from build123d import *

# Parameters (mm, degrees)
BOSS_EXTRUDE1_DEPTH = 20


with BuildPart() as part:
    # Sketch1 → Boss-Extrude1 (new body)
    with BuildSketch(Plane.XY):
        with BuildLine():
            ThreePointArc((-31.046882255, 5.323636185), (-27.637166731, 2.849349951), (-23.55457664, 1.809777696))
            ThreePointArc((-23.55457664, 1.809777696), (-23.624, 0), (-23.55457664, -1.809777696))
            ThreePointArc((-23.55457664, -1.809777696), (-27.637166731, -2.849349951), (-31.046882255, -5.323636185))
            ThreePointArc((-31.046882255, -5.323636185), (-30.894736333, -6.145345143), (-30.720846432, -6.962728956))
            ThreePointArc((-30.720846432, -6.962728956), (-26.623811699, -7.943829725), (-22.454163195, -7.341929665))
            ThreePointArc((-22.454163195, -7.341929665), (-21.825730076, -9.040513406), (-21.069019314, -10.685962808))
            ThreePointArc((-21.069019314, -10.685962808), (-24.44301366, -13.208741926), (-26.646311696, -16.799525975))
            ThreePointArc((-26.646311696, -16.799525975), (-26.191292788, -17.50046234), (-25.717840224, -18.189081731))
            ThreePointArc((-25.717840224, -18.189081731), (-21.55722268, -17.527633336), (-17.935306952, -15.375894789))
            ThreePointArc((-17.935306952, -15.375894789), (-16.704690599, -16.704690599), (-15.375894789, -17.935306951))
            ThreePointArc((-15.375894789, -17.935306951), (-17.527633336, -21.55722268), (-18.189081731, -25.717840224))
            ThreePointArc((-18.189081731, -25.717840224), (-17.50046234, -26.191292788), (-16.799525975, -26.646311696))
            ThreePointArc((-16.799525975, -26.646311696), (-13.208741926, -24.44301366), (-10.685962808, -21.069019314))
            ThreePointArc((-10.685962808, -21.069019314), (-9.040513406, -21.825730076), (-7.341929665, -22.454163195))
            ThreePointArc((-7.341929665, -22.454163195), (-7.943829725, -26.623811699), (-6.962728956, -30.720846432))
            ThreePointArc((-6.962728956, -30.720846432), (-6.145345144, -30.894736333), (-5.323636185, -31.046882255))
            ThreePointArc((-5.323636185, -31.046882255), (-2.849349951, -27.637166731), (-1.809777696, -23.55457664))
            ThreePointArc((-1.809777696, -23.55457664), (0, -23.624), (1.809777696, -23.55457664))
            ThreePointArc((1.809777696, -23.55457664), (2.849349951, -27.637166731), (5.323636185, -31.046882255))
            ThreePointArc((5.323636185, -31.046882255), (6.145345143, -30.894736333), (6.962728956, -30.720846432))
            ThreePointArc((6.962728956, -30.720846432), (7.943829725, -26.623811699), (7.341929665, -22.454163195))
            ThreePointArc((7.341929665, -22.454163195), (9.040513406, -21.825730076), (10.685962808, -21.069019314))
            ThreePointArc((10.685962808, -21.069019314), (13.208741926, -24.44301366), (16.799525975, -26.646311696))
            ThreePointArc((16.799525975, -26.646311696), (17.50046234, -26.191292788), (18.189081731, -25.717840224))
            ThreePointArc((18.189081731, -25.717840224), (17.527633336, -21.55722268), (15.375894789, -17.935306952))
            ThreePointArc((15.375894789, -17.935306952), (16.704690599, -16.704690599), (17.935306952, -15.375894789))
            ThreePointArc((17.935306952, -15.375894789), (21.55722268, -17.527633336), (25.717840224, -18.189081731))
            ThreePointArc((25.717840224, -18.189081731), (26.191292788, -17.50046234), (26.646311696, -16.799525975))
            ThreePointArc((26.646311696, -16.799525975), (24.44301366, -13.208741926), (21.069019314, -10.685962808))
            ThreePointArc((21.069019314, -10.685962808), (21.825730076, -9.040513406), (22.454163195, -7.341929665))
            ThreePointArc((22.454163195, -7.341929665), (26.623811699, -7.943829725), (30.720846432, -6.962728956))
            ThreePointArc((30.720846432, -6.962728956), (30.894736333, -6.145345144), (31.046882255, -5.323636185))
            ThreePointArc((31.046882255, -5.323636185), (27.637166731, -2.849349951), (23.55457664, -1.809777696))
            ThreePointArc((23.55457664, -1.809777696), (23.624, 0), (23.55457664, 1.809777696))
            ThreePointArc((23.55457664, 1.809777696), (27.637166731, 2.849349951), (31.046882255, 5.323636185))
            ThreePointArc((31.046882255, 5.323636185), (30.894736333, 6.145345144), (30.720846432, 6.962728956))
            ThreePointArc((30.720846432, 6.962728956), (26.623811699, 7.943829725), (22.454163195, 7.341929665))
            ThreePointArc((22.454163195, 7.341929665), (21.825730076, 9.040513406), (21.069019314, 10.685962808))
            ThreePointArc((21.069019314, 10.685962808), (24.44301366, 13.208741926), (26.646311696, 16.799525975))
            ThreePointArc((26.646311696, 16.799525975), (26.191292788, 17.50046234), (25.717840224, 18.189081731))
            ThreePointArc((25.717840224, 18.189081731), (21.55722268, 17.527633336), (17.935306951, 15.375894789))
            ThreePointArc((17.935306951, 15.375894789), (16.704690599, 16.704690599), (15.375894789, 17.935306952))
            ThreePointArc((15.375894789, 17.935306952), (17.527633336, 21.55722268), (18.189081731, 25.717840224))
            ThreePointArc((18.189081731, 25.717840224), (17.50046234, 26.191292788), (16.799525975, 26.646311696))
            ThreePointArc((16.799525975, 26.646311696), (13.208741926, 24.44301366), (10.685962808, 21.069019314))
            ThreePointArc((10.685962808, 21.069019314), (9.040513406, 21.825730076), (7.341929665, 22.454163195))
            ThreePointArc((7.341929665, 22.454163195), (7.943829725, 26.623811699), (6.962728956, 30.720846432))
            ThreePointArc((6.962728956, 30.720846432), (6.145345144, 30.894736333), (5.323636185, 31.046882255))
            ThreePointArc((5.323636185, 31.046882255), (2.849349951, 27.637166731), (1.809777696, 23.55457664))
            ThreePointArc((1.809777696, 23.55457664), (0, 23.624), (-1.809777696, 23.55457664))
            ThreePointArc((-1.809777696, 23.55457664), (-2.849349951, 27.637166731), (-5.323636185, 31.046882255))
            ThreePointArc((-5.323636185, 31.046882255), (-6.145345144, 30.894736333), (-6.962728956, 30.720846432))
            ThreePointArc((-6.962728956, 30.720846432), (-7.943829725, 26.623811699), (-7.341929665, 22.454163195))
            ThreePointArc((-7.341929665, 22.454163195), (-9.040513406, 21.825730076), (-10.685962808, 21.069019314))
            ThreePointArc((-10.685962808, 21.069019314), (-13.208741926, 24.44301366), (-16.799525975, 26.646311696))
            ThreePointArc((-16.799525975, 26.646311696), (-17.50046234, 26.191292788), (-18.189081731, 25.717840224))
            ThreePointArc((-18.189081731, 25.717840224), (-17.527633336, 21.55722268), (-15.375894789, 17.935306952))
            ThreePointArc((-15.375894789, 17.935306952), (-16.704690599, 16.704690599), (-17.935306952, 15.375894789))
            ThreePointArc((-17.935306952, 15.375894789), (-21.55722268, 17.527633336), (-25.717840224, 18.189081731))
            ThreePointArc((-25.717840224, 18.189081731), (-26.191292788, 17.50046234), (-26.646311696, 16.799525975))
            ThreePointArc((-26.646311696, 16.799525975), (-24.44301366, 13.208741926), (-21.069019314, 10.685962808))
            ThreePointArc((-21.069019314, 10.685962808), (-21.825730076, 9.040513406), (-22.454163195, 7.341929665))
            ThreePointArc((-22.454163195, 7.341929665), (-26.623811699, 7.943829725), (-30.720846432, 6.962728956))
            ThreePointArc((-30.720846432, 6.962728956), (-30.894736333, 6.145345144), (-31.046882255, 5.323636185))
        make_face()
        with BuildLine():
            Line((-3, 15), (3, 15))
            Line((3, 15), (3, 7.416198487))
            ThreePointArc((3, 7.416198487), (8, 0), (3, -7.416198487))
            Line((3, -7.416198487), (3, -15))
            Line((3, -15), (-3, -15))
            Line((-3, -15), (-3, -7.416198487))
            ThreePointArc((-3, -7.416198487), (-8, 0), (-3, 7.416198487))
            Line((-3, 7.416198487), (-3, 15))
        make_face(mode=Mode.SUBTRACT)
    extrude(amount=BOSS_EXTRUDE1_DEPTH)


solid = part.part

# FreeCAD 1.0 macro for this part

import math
import FreeCAD as App
import Part
import Sketcher
Q = App.Units.Quantity

doc = App.newDocument("Part")
params = doc.addObject("Spreadsheet::Sheet", "Params")
for row, (alias, value) in enumerate([
    ("sketch1_radius", "8 mm"),
    ("sketch1_radius2", "11.2 mm"),
    ("sketch1_radius3", "31.499999 mm"),
    ("sketch1_width", "6 mm"),
    ("pad1_length", "20 mm"),
], start=1):
    params.set(f"A{row}", alias)
    params.set(f"B{row}", "=" + value)
    params.setAlias(f"B{row}", alias)

body = doc.addObject("PartDesign::Body", "Body")

sketch1 = body.newObject("Sketcher::SketchObject", "Sketch")
sketch1.AttachmentSupport = (doc.getObject("XY_Plane"), [""])
sketch1.MapMode = "FlatFace"
sketch1.addGeometry(Part.ArcOfCircle(Part.Circle(App.Vector(-22.9, 13, 0), App.Vector(0, 0, 1), 11.2), math.radians(-137), math.radians(-93)), False)
sketch1.addGeometry(Part.ArcOfCircle(Part.Circle(App.Vector(0, 0, 0), App.Vector(0, 0, 1), 23.6), math.radians(175.61), math.radians(184.39)), False)
sketch1.addGeometry(Part.ArcOfCircle(Part.Circle(App.Vector(-22.9, -13, 0), App.Vector(0, 0, 1), 11.2), math.radians(93), math.radians(137)), False)
sketch1.addGeometry(Part.ArcOfCircle(Part.Circle(App.Vector(0, 0, 0), App.Vector(0, 0, 1), 31.5), math.radians(-170.27), math.radians(-167.23)), False)
sketch1.addGeometry(Part.ArcOfCircle(Part.Circle(App.Vector(-26.1, 3.2, 0), App.Vector(0, 0, 1), 11.2), math.radians(-114), math.radians(-71)), False)
sketch1.addGeometry(Part.ArcOfCircle(Part.Circle(App.Vector(0, 0, 0), App.Vector(0, 0, 1), 23.6), math.radians(-161.89), math.radians(-153.11)), False)
sketch1.addGeometry(Part.ArcOfCircle(Part.Circle(App.Vector(-16.2, -20.8, 0), App.Vector(0, 0, 1), 11.2), math.radians(116), math.radians(159)), False)
sketch1.addGeometry(Part.ArcOfCircle(Part.Circle(App.Vector(0, 0, 0), App.Vector(0, 0, 1), 31.5), math.radians(-147.77), math.radians(-144.73)), False)
sketch1.addGeometry(Part.ArcOfCircle(Part.Circle(App.Vector(-25.4, -7, 0), App.Vector(0, 0, 1), 11.2), math.radians(-92), math.radians(-48)), False)
sketch1.addGeometry(Part.ArcOfCircle(Part.Circle(App.Vector(0, 0, 0), App.Vector(0, 0, 1), 23.6), math.radians(-139.39), math.radians(-130.61)), False)
sketch1.addGeometry(Part.ArcOfCircle(Part.Circle(App.Vector(-7, -25.4, 0), App.Vector(0, 0, 1), 11.2), math.radians(138), math.radians(182)), False)
sketch1.addGeometry(Part.ArcOfCircle(Part.Circle(App.Vector(0, 0, 0), App.Vector(0, 0, 1), 31.5), math.radians(-125.27), math.radians(-122.23)), False)
sketch1.addGeometry(Part.ArcOfCircle(Part.Circle(App.Vector(-20.8, -16.2, 0), App.Vector(0, 0, 1), 11.2), math.radians(-69), math.radians(-26)), False)
sketch1.addGeometry(Part.ArcOfCircle(Part.Circle(App.Vector(0, 0, 0), App.Vector(0, 0, 1), 23.6), math.radians(-116.89), math.radians(-108.11)), False)
sketch1.addGeometry(Part.ArcOfCircle(Part.Circle(App.Vector(3.2, -26.1, 0), App.Vector(0, 0, 1), 11.2), math.radians(161), math.radians(204)), False)
sketch1.addGeometry(Part.ArcOfCircle(Part.Circle(App.Vector(0, 0, 0), App.Vector(0, 0, 1), 31.5), math.radians(-102.77), math.radians(-99.73)), False)
sketch1.addGeometry(Part.ArcOfCircle(Part.Circle(App.Vector(-13, -22.9, 0), App.Vector(0, 0, 1), 11.2), math.radians(-47), math.radians(-3)), False)
sketch1.addGeometry(Part.ArcOfCircle(Part.Circle(App.Vector(0, 0, 0), App.Vector(0, 0, 1), 23.6), math.radians(-94.39), math.radians(-85.61)), False)
sketch1.addGeometry(Part.ArcOfCircle(Part.Circle(App.Vector(13, -22.9, 0), App.Vector(0, 0, 1), 11.2), math.radians(-177), math.radians(-133)), False)
sketch1.addGeometry(Part.ArcOfCircle(Part.Circle(App.Vector(0, 0, 0), App.Vector(0, 0, 1), 31.5), math.radians(-80.27), math.radians(-77.23)), False)
sketch1.addGeometry(Part.ArcOfCircle(Part.Circle(App.Vector(-3.2, -26.1, 0), App.Vector(0, 0, 1), 11.2), math.radians(-24), math.radians(19)), False)
sketch1.addGeometry(Part.ArcOfCircle(Part.Circle(App.Vector(0, 0, 0), App.Vector(0, 0, 1), 23.6), math.radians(-71.89), math.radians(-63.11)), False)
sketch1.addGeometry(Part.ArcOfCircle(Part.Circle(App.Vector(20.8, -16.2, 0), App.Vector(0, 0, 1), 11.2), math.radians(-154), math.radians(-111)), False)
sketch1.addGeometry(Part.ArcOfCircle(Part.Circle(App.Vector(0, 0, 0), App.Vector(0, 0, 1), 31.5), math.radians(-57.77), math.radians(-54.73)), False)
sketch1.addGeometry(Part.ArcOfCircle(Part.Circle(App.Vector(7, -25.4, 0), App.Vector(0, 0, 1), 11.2), math.radians(-2), math.radians(42)), False)
sketch1.addGeometry(Part.ArcOfCircle(Part.Circle(App.Vector(0, 0, 0), App.Vector(0, 0, 1), 23.6), math.radians(-49.39), math.radians(-40.61)), False)
sketch1.addGeometry(Part.ArcOfCircle(Part.Circle(App.Vector(25.4, -7, 0), App.Vector(0, 0, 1), 11.2), math.radians(-132), math.radians(-88)), False)
sketch1.addGeometry(Part.ArcOfCircle(Part.Circle(App.Vector(0, 0, 0), App.Vector(0, 0, 1), 31.5), math.radians(-35.27), math.radians(-32.23)), False)
sketch1.addGeometry(Part.ArcOfCircle(Part.Circle(App.Vector(16.2, -20.8, 0), App.Vector(0, 0, 1), 11.2), math.radians(21), math.radians(64)), False)
sketch1.addGeometry(Part.ArcOfCircle(Part.Circle(App.Vector(0, 0, 0), App.Vector(0, 0, 1), 23.6), math.radians(-26.89), math.radians(-18.11)), False)
sketch1.addGeometry(Part.ArcOfCircle(Part.Circle(App.Vector(26.1, 3.2, 0), App.Vector(0, 0, 1), 11.2), math.radians(-109), math.radians(-66)), False)
sketch1.addGeometry(Part.ArcOfCircle(Part.Circle(App.Vector(0, 0, 0), App.Vector(0, 0, 1), 31.5), math.radians(-12.77), math.radians(-9.73)), False)
sketch1.addGeometry(Part.ArcOfCircle(Part.Circle(App.Vector(22.9, -13, 0), App.Vector(0, 0, 1), 11.2), math.radians(43), math.radians(87)), False)
sketch1.addGeometry(Part.ArcOfCircle(Part.Circle(App.Vector(0, 0, 0), App.Vector(0, 0, 1), 23.6), math.radians(-4.39), math.radians(4.39)), False)
sketch1.addGeometry(Part.ArcOfCircle(Part.Circle(App.Vector(22.9, 13, 0), App.Vector(0, 0, 1), 11.2), math.radians(-87), math.radians(-43)), False)
sketch1.addGeometry(Part.ArcOfCircle(Part.Circle(App.Vector(0, 0, 0), App.Vector(0, 0, 1), 31.5), math.radians(9.73), math.radians(12.77)), False)
sketch1.addGeometry(Part.ArcOfCircle(Part.Circle(App.Vector(26.1, -3.2, 0), App.Vector(0, 0, 1), 11.2), math.radians(66), math.radians(109)), False)
sketch1.addGeometry(Part.ArcOfCircle(Part.Circle(App.Vector(0, 0, 0), App.Vector(0, 0, 1), 23.6), math.radians(18.11), math.radians(26.89)), False)
sketch1.addGeometry(Part.ArcOfCircle(Part.Circle(App.Vector(16.2, 20.8, 0), App.Vector(0, 0, 1), 11.2), math.radians(-64), math.radians(-21)), False)
sketch1.addGeometry(Part.ArcOfCircle(Part.Circle(App.Vector(0, 0, 0), App.Vector(0, 0, 1), 31.5), math.radians(32.23), math.radians(35.27)), False)
sketch1.addGeometry(Part.ArcOfCircle(Part.Circle(App.Vector(25.4, 7, 0), App.Vector(0, 0, 1), 11.2), math.radians(88), math.radians(132)), False)
sketch1.addGeometry(Part.ArcOfCircle(Part.Circle(App.Vector(0, 0, 0), App.Vector(0, 0, 1), 23.6), math.radians(40.61), math.radians(49.39)), False)
sketch1.addGeometry(Part.ArcOfCircle(Part.Circle(App.Vector(7, 25.4, 0), App.Vector(0, 0, 1), 11.2), math.radians(-42), math.radians(2)), False)
sketch1.addGeometry(Part.ArcOfCircle(Part.Circle(App.Vector(0, 0, 0), App.Vector(0, 0, 1), 31.5), math.radians(54.73), math.radians(57.77)), False)
sketch1.addGeometry(Part.ArcOfCircle(Part.Circle(App.Vector(20.8, 16.2, 0), App.Vector(0, 0, 1), 11.2), math.radians(111), math.radians(154)), False)
sketch1.addGeometry(Part.ArcOfCircle(Part.Circle(App.Vector(0, 0, 0), App.Vector(0, 0, 1), 23.6), math.radians(63.11), math.radians(71.89)), False)
sketch1.addGeometry(Part.ArcOfCircle(Part.Circle(App.Vector(-3.2, 26.1, 0), App.Vector(0, 0, 1), 11.2), math.radians(-19), math.radians(24)), False)
sketch1.addGeometry(Part.ArcOfCircle(Part.Circle(App.Vector(0, 0, 0), App.Vector(0, 0, 1), 31.5), math.radians(77.23), math.radians(80.27)), False)
sketch1.addGeometry(Part.ArcOfCircle(Part.Circle(App.Vector(13, 22.9, 0), App.Vector(0, 0, 1), 11.2), math.radians(133), math.radians(177)), False)
sketch1.addGeometry(Part.ArcOfCircle(Part.Circle(App.Vector(0, 0, 0), App.Vector(0, 0, 1), 23.6), math.radians(85.61), math.radians(94.39)), False)
sketch1.addGeometry(Part.ArcOfCircle(Part.Circle(App.Vector(-13, 22.9, 0), App.Vector(0, 0, 1), 11.2), math.radians(3), math.radians(47)), False)
sketch1.addGeometry(Part.ArcOfCircle(Part.Circle(App.Vector(0, 0, 0), App.Vector(0, 0, 1), 31.5), math.radians(99.73), math.radians(102.77)), False)
sketch1.addGeometry(Part.ArcOfCircle(Part.Circle(App.Vector(3.2, 26.1, 0), App.Vector(0, 0, 1), 11.2), math.radians(156), math.radians(199)), False)
sketch1.addGeometry(Part.ArcOfCircle(Part.Circle(App.Vector(0, 0, 0), App.Vector(0, 0, 1), 23.6), math.radians(108.11), math.radians(116.89)), False)
sketch1.addGeometry(Part.ArcOfCircle(Part.Circle(App.Vector(-20.8, 16.2, 0), App.Vector(0, 0, 1), 11.2), math.radians(26), math.radians(69)), False)
sketch1.addGeometry(Part.ArcOfCircle(Part.Circle(App.Vector(0, 0, 0), App.Vector(0, 0, 1), 31.5), math.radians(122.23), math.radians(125.27)), False)
sketch1.addGeometry(Part.ArcOfCircle(Part.Circle(App.Vector(-7, 25.4, 0), App.Vector(0, 0, 1), 11.2), math.radians(178), math.radians(222)), False)
sketch1.addGeometry(Part.ArcOfCircle(Part.Circle(App.Vector(0, 0, 0), App.Vector(0, 0, 1), 23.6), math.radians(130.61), math.radians(139.39)), False)
sketch1.addGeometry(Part.ArcOfCircle(Part.Circle(App.Vector(-25.4, 7, 0), App.Vector(0, 0, 1), 11.2), math.radians(48), math.radians(92)), False)
sketch1.addGeometry(Part.ArcOfCircle(Part.Circle(App.Vector(0, 0, 0), App.Vector(0, 0, 1), 31.5), math.radians(144.73), math.radians(147.77)), False)
sketch1.addGeometry(Part.ArcOfCircle(Part.Circle(App.Vector(-16.2, 20.8, 0), App.Vector(0, 0, 1), 11.2), math.radians(-159), math.radians(-116)), False)
sketch1.addGeometry(Part.ArcOfCircle(Part.Circle(App.Vector(0, 0, 0), App.Vector(0, 0, 1), 23.6), math.radians(153.11), math.radians(161.89)), False)
sketch1.addGeometry(Part.ArcOfCircle(Part.Circle(App.Vector(-26.1, -3.2, 0), App.Vector(0, 0, 1), 11.2), math.radians(71), math.radians(114)), False)
sketch1.addGeometry(Part.ArcOfCircle(Part.Circle(App.Vector(0, 0, 0), App.Vector(0, 0, 1), 31.5), math.radians(167.23), math.radians(170.27)), False)
sketch1.addGeometry(Part.LineSegment(App.Vector(-3, 7.4, 0), App.Vector(-3, 15, 0)), False)
sketch1.addGeometry(Part.LineSegment(App.Vector(-3, 15, 0), App.Vector(3, 15, 0)), False)
sketch1.addGeometry(Part.LineSegment(App.Vector(3, 15, 0), App.Vector(3, 7.4, 0)), False)
sketch1.addGeometry(Part.ArcOfCircle(Part.Circle(App.Vector(0, 0, 0), App.Vector(0, 0, 1), 8), math.radians(-68), math.radians(68)), False)
sketch1.addGeometry(Part.LineSegment(App.Vector(3, -7.4, 0), App.Vector(3, -15, 0)), False)
sketch1.addGeometry(Part.LineSegment(App.Vector(3, -15, 0), App.Vector(-3, -15, 0)), False)
sketch1.addGeometry(Part.LineSegment(App.Vector(-3, -15, 0), App.Vector(-3, -7.4, 0)), False)
sketch1.addGeometry(Part.ArcOfCircle(Part.Circle(App.Vector(0, 0, 0), App.Vector(0, 0, 1), 8), math.radians(112), math.radians(248)), False)
sketch1.addConstraint(Sketcher.Constraint("Coincident", 0, 2, 1, 1))
sketch1.addConstraint(Sketcher.Constraint("Coincident", 1, 2, 2, 1))
sketch1.addConstraint(Sketcher.Constraint("Coincident", 2, 2, 3, 1))
sketch1.addConstraint(Sketcher.Constraint("Coincident", 3, 2, 4, 1))
sketch1.addConstraint(Sketcher.Constraint("Coincident", 4, 2, 5, 1))
sketch1.addConstraint(Sketcher.Constraint("Coincident", 5, 2, 6, 1))
sketch1.addConstraint(Sketcher.Constraint("Coincident", 6, 2, 7, 1))
sketch1.addConstraint(Sketcher.Constraint("Coincident", 7, 2, 8, 1))
sketch1.addConstraint(Sketcher.Constraint("Coincident", 8, 2, 9, 1))
sketch1.addConstraint(Sketcher.Constraint("Coincident", 9, 2, 10, 1))
sketch1.addConstraint(Sketcher.Constraint("Coincident", 10, 2, 11, 1))
sketch1.addConstraint(Sketcher.Constraint("Coincident", 11, 2, 12, 1))
sketch1.addConstraint(Sketcher.Constraint("Coincident", 12, 2, 13, 1))
sketch1.addConstraint(Sketcher.Constraint("Coincident", 13, 2, 14, 1))
sketch1.addConstraint(Sketcher.Constraint("Coincident", 14, 2, 15, 1))
sketch1.addConstraint(Sketcher.Constraint("Coincident", 15, 2, 16, 1))
sketch1.addConstraint(Sketcher.Constraint("Coincident", 16, 2, 17, 1))
sketch1.addConstraint(Sketcher.Constraint("Coincident", 17, 2, 18, 1))
sketch1.addConstraint(Sketcher.Constraint("Coincident", 18, 2, 19, 1))
sketch1.addConstraint(Sketcher.Constraint("Coincident", 19, 2, 20, 1))
sketch1.addConstraint(Sketcher.Constraint("Coincident", 20, 2, 21, 1))
sketch1.addConstraint(Sketcher.Constraint("Coincident", 21, 2, 22, 1))
sketch1.addConstraint(Sketcher.Constraint("Coincident", 22, 2, 23, 1))
sketch1.addConstraint(Sketcher.Constraint("Coincident", 23, 2, 24, 1))
sketch1.addConstraint(Sketcher.Constraint("Coincident", 24, 2, 25, 1))
sketch1.addConstraint(Sketcher.Constraint("Coincident", 25, 2, 26, 1))
sketch1.addConstraint(Sketcher.Constraint("Coincident", 26, 2, 27, 1))
sketch1.addConstraint(Sketcher.Constraint("Coincident", 27, 2, 28, 1))
sketch1.addConstraint(Sketcher.Constraint("Coincident", 28, 2, 29, 1))
sketch1.addConstraint(Sketcher.Constraint("Coincident", 29, 2, 30, 1))
sketch1.addConstraint(Sketcher.Constraint("Coincident", 30, 2, 31, 1))
sketch1.addConstraint(Sketcher.Constraint("Coincident", 31, 2, 32, 1))
sketch1.addConstraint(Sketcher.Constraint("Coincident", 32, 2, 33, 1))
sketch1.addConstraint(Sketcher.Constraint("Coincident", 33, 2, 34, 1))
sketch1.addConstraint(Sketcher.Constraint("Coincident", 34, 2, 35, 1))
sketch1.addConstraint(Sketcher.Constraint("Coincident", 35, 2, 36, 1))
sketch1.addConstraint(Sketcher.Constraint("Coincident", 36, 2, 37, 1))
sketch1.addConstraint(Sketcher.Constraint("Coincident", 37, 2, 38, 1))
sketch1.addConstraint(Sketcher.Constraint("Coincident", 38, 2, 39, 1))
sketch1.addConstraint(Sketcher.Constraint("Coincident", 39, 2, 40, 1))
sketch1.addConstraint(Sketcher.Constraint("Coincident", 40, 2, 41, 1))
sketch1.addConstraint(Sketcher.Constraint("Coincident", 41, 2, 42, 1))
sketch1.addConstraint(Sketcher.Constraint("Coincident", 42, 2, 43, 1))
sketch1.addConstraint(Sketcher.Constraint("Coincident", 43, 2, 44, 1))
sketch1.addConstraint(Sketcher.Constraint("Coincident", 44, 2, 45, 1))
sketch1.addConstraint(Sketcher.Constraint("Coincident", 45, 2, 46, 1))
sketch1.addConstraint(Sketcher.Constraint("Coincident", 46, 2, 47, 1))
sketch1.addConstraint(Sketcher.Constraint("Coincident", 47, 2, 48, 1))
sketch1.addConstraint(Sketcher.Constraint("Coincident", 48, 2, 49, 1))
sketch1.addConstraint(Sketcher.Constraint("Coincident", 49, 2, 50, 1))
sketch1.addConstraint(Sketcher.Constraint("Coincident", 50, 2, 51, 1))
sketch1.addConstraint(Sketcher.Constraint("Coincident", 51, 2, 52, 1))
sketch1.addConstraint(Sketcher.Constraint("Coincident", 52, 2, 53, 1))
sketch1.addConstraint(Sketcher.Constraint("Coincident", 53, 2, 54, 1))
sketch1.addConstraint(Sketcher.Constraint("Coincident", 54, 2, 55, 1))
sketch1.addConstraint(Sketcher.Constraint("Coincident", 55, 2, 56, 1))
sketch1.addConstraint(Sketcher.Constraint("Coincident", 56, 2, 57, 1))
sketch1.addConstraint(Sketcher.Constraint("Coincident", 57, 2, 58, 1))
sketch1.addConstraint(Sketcher.Constraint("Coincident", 58, 2, 59, 1))
sketch1.addConstraint(Sketcher.Constraint("Coincident", 59, 2, 60, 1))
sketch1.addConstraint(Sketcher.Constraint("Coincident", 60, 2, 61, 1))
sketch1.addConstraint(Sketcher.Constraint("Coincident", 61, 2, 62, 1))
sketch1.addConstraint(Sketcher.Constraint("Coincident", 62, 2, 63, 1))
sketch1.addConstraint(Sketcher.Constraint("Coincident", 63, 2, 0, 1))
sketch1.addConstraint(Sketcher.Constraint("Coincident", 64, 2, 65, 1))
sketch1.addConstraint(Sketcher.Constraint("Coincident", 65, 2, 66, 1))
sketch1.addConstraint(Sketcher.Constraint("Coincident", 66, 2, 67, 2))
sketch1.addConstraint(Sketcher.Constraint("Coincident", 67, 1, 68, 1))
sketch1.addConstraint(Sketcher.Constraint("Coincident", 68, 2, 69, 1))
sketch1.addConstraint(Sketcher.Constraint("Coincident", 69, 2, 70, 1))
sketch1.addConstraint(Sketcher.Constraint("Coincident", 70, 2, 71, 2))
sketch1.addConstraint(Sketcher.Constraint("Coincident", 71, 1, 64, 1))
sketch1.addConstraint(Sketcher.Constraint("Vertical", 64))
sketch1.addConstraint(Sketcher.Constraint("Horizontal", 65))
sketch1.addConstraint(Sketcher.Constraint("Vertical", 66))
sketch1.addConstraint(Sketcher.Constraint("Vertical", 68))
sketch1.addConstraint(Sketcher.Constraint("Horizontal", 69))
sketch1.addConstraint(Sketcher.Constraint("Vertical", 70))
sketch1.addConstraint(Sketcher.Constraint("Coincident", 1, 3, -1, 1))
sketch1.addConstraint(Sketcher.Constraint("Coincident", 3, 3, -1, 1))
sketch1.addConstraint(Sketcher.Constraint("Coincident", 5, 3, -1, 1))
sketch1.addConstraint(Sketcher.Constraint("Coincident", 7, 3, -1, 1))
sketch1.addConstraint(Sketcher.Constraint("Coincident", 9, 3, -1, 1))
sketch1.addConstraint(Sketcher.Constraint("Coincident", 11, 3, -1, 1))
sketch1.addConstraint(Sketcher.Constraint("Coincident", 13, 3, -1, 1))
sketch1.addConstraint(Sketcher.Constraint("Coincident", 15, 3, -1, 1))
sketch1.addConstraint(Sketcher.Constraint("Coincident", 17, 3, -1, 1))
sketch1.addConstraint(Sketcher.Constraint("Coincident", 19, 3, -1, 1))
sketch1.addConstraint(Sketcher.Constraint("Coincident", 21, 3, -1, 1))
sketch1.addConstraint(Sketcher.Constraint("Coincident", 23, 3, -1, 1))
sketch1.addConstraint(Sketcher.Constraint("Coincident", 25, 3, -1, 1))
sketch1.addConstraint(Sketcher.Constraint("Coincident", 27, 3, -1, 1))
sketch1.addConstraint(Sketcher.Constraint("Coincident", 29, 3, -1, 1))
sketch1.addConstraint(Sketcher.Constraint("Coincident", 31, 3, -1, 1))
sketch1.addConstraint(Sketcher.Constraint("Coincident", 33, 3, -1, 1))
sketch1.addConstraint(Sketcher.Constraint("Coincident", 35, 3, -1, 1))
sketch1.addConstraint(Sketcher.Constraint("Coincident", 37, 3, -1, 1))
sketch1.addConstraint(Sketcher.Constraint("Coincident", 39, 3, -1, 1))
sketch1.addConstraint(Sketcher.Constraint("Coincident", 41, 3, -1, 1))
sketch1.addConstraint(Sketcher.Constraint("Coincident", 43, 3, -1, 1))
sketch1.addConstraint(Sketcher.Constraint("Coincident", 45, 3, -1, 1))
sketch1.addConstraint(Sketcher.Constraint("Coincident", 47, 3, -1, 1))
sketch1.addConstraint(Sketcher.Constraint("Coincident", 49, 3, -1, 1))
sketch1.addConstraint(Sketcher.Constraint("Coincident", 51, 3, -1, 1))
sketch1.addConstraint(Sketcher.Constraint("Coincident", 53, 3, -1, 1))
sketch1.addConstraint(Sketcher.Constraint("Coincident", 55, 3, -1, 1))
sketch1.addConstraint(Sketcher.Constraint("Coincident", 57, 3, -1, 1))
sketch1.addConstraint(Sketcher.Constraint("Coincident", 59, 3, -1, 1))
sketch1.addConstraint(Sketcher.Constraint("Coincident", 61, 3, -1, 1))
sketch1.addConstraint(Sketcher.Constraint("Coincident", 63, 3, -1, 1))
sketch1.addConstraint(Sketcher.Constraint("Coincident", 67, 3, -1, 1))
sketch1.addConstraint(Sketcher.Constraint("Coincident", 71, 3, -1, 1))
sketch1.addConstraint(Sketcher.Constraint("Equal", 0, 2))
sketch1.addConstraint(Sketcher.Constraint("Equal", 2, 4))
sketch1.addConstraint(Sketcher.Constraint("Equal", 1, 5))
sketch1.addConstraint(Sketcher.Constraint("Equal", 4, 6))
sketch1.addConstraint(Sketcher.Constraint("Equal", 3, 7))
sketch1.addConstraint(Sketcher.Constraint("Equal", 6, 8))
sketch1.addConstraint(Sketcher.Constraint("Equal", 5, 9))
sketch1.addConstraint(Sketcher.Constraint("Equal", 8, 10))
sketch1.addConstraint(Sketcher.Constraint("Equal", 7, 11))
sketch1.addConstraint(Sketcher.Constraint("Equal", 10, 12))
sketch1.addConstraint(Sketcher.Constraint("Equal", 9, 13))
sketch1.addConstraint(Sketcher.Constraint("Equal", 12, 14))
sketch1.addConstraint(Sketcher.Constraint("Equal", 11, 15))
sketch1.addConstraint(Sketcher.Constraint("Equal", 14, 16))
sketch1.addConstraint(Sketcher.Constraint("Equal", 13, 17))
sketch1.addConstraint(Sketcher.Constraint("Equal", 16, 18))
sketch1.addConstraint(Sketcher.Constraint("Equal", 15, 19))
sketch1.addConstraint(Sketcher.Constraint("Equal", 18, 20))
sketch1.addConstraint(Sketcher.Constraint("Equal", 17, 21))
sketch1.addConstraint(Sketcher.Constraint("Equal", 20, 22))
sketch1.addConstraint(Sketcher.Constraint("Equal", 19, 23))
sketch1.addConstraint(Sketcher.Constraint("Equal", 22, 24))
sketch1.addConstraint(Sketcher.Constraint("Equal", 21, 25))
sketch1.addConstraint(Sketcher.Constraint("Equal", 24, 26))
sketch1.addConstraint(Sketcher.Constraint("Equal", 23, 27))
sketch1.addConstraint(Sketcher.Constraint("Equal", 26, 28))
sketch1.addConstraint(Sketcher.Constraint("Equal", 25, 29))
sketch1.addConstraint(Sketcher.Constraint("Equal", 28, 30))
sketch1.addConstraint(Sketcher.Constraint("Equal", 27, 31))
sketch1.addConstraint(Sketcher.Constraint("Equal", 30, 32))
sketch1.addConstraint(Sketcher.Constraint("Equal", 29, 33))
sketch1.addConstraint(Sketcher.Constraint("Equal", 32, 34))
sketch1.addConstraint(Sketcher.Constraint("Equal", 31, 35))
sketch1.addConstraint(Sketcher.Constraint("Equal", 34, 36))
sketch1.addConstraint(Sketcher.Constraint("Equal", 33, 37))
sketch1.addConstraint(Sketcher.Constraint("Equal", 36, 38))
sketch1.addConstraint(Sketcher.Constraint("Equal", 35, 39))
sketch1.addConstraint(Sketcher.Constraint("Equal", 38, 40))
sketch1.addConstraint(Sketcher.Constraint("Equal", 37, 41))
sketch1.addConstraint(Sketcher.Constraint("Equal", 40, 42))
sketch1.addConstraint(Sketcher.Constraint("Equal", 39, 43))
sketch1.addConstraint(Sketcher.Constraint("Equal", 42, 44))
sketch1.addConstraint(Sketcher.Constraint("Equal", 41, 45))
sketch1.addConstraint(Sketcher.Constraint("Equal", 44, 46))
sketch1.addConstraint(Sketcher.Constraint("Equal", 43, 47))
sketch1.addConstraint(Sketcher.Constraint("Equal", 46, 48))
sketch1.addConstraint(Sketcher.Constraint("Equal", 45, 49))
sketch1.addConstraint(Sketcher.Constraint("Equal", 48, 50))
sketch1.addConstraint(Sketcher.Constraint("Equal", 47, 51))
sketch1.addConstraint(Sketcher.Constraint("Equal", 50, 52))
sketch1.addConstraint(Sketcher.Constraint("Equal", 49, 53))
sketch1.addConstraint(Sketcher.Constraint("Equal", 52, 54))
sketch1.addConstraint(Sketcher.Constraint("Equal", 51, 55))
sketch1.addConstraint(Sketcher.Constraint("Equal", 54, 56))
sketch1.addConstraint(Sketcher.Constraint("Equal", 53, 57))
sketch1.addConstraint(Sketcher.Constraint("Equal", 56, 58))
sketch1.addConstraint(Sketcher.Constraint("Equal", 55, 59))
sketch1.addConstraint(Sketcher.Constraint("Equal", 58, 60))
sketch1.addConstraint(Sketcher.Constraint("Equal", 57, 61))
sketch1.addConstraint(Sketcher.Constraint("Equal", 60, 62))
sketch1.addConstraint(Sketcher.Constraint("Equal", 59, 63))
sketch1.addConstraint(Sketcher.Constraint("Equal", 67, 71))
sketch1.addConstraint(Sketcher.Constraint("Symmetric", 0, 3, 32, 3, -1, 1))
sketch1.addConstraint(Sketcher.Constraint("Symmetric", 2, 3, 34, 3, -1, 1))
sketch1.addConstraint(Sketcher.Constraint("Symmetric", 4, 3, 36, 3, -1, 1))
sketch1.addConstraint(Sketcher.Constraint("Symmetric", 6, 3, 38, 3, -1, 1))
sketch1.addConstraint(Sketcher.Constraint("Symmetric", 8, 3, 40, 3, -1, 1))
sketch1.addConstraint(Sketcher.Constraint("Symmetric", 10, 3, 42, 3, -1, 1))
sketch1.addConstraint(Sketcher.Constraint("Symmetric", 12, 3, 44, 3, -1, 1))
sketch1.addConstraint(Sketcher.Constraint("Symmetric", 14, 3, 46, 3, -1, 1))
sketch1.addConstraint(Sketcher.Constraint("Symmetric", 16, 3, 48, 3, -1, 1))
sketch1.addConstraint(Sketcher.Constraint("Symmetric", 18, 3, 50, 3, -1, 1))
sketch1.addConstraint(Sketcher.Constraint("Symmetric", 20, 3, 52, 3, -1, 1))
sketch1.addConstraint(Sketcher.Constraint("Symmetric", 22, 3, 54, 3, -1, 1))
sketch1.addConstraint(Sketcher.Constraint("Symmetric", 24, 3, 56, 3, -1, 1))
sketch1.addConstraint(Sketcher.Constraint("Symmetric", 26, 3, 58, 3, -1, 1))
sketch1.addConstraint(Sketcher.Constraint("Symmetric", 28, 3, 60, 3, -1, 1))
sketch1.addConstraint(Sketcher.Constraint("Symmetric", 30, 3, 62, 3, -1, 1))
sketch1.addConstraint(Sketcher.Constraint("Symmetric", 64, 2, 68, 2, -1, 1))
sketch1.addConstraint(Sketcher.Constraint("Symmetric", 16, 3, 18, 3, -2))
sketch1.addConstraint(Sketcher.Constraint("Symmetric", 14, 3, 20, 3, -2))
sketch1.addConstraint(Sketcher.Constraint("Symmetric", 12, 3, 22, 3, -2))
sketch1.addConstraint(Sketcher.Constraint("Symmetric", 10, 3, 24, 3, -2))
sketch1.addConstraint(Sketcher.Constraint("Symmetric", 8, 3, 26, 3, -2))
sketch1.addConstraint(Sketcher.Constraint("Symmetric", 6, 3, 28, 3, -2))
sketch1.addConstraint(Sketcher.Constraint("Symmetric", 4, 3, 30, 3, -2))
sketch1.addConstraint(Sketcher.Constraint("Symmetric", 2, 3, 32, 3, -2))
sketch1.addConstraint(Sketcher.Constraint("Horizontal", 67, 1, 70, 2))
sketch1.addConstraint(Sketcher.Constraint("Horizontal", 66, 2, 71, 1))
sketch1.addConstraint(Sketcher.Constraint("Radius", 67, Q("8 mm")))
sketch1.addConstraint(Sketcher.Constraint("Radius", 0, Q("11.2 mm")))
sketch1.addConstraint(Sketcher.Constraint("Radius", 3, Q("31.499999 mm")))
sketch1.addConstraint(Sketcher.Constraint("DistanceX", 65, 1, 65, 2, Q("6 mm")))
sketch1.addConstraint(Sketcher.Constraint("DistanceY", -1, 1, 64, 2, Q("15 mm")))
sketch1.addConstraint(Sketcher.Constraint("Radius", 1, Q("23.624 mm")))
sketch1.addConstraint(Sketcher.Constraint("DistanceX", 6, 3, -1, 1, Q("16.168839 mm")))
sketch1.addConstraint(Sketcher.Constraint("DistanceY", 6, 3, -1, 1, Q("20.757121 mm")))
sketch1.addConstraint(Sketcher.Constraint("DistanceX", 12, 3, -1, 1, Q("20.757121 mm")))
sketch1.addConstraint(Sketcher.Constraint("DistanceY", 12, 3, -1, 1, Q("16.168839 mm")))
sketch1.addConstraint(Sketcher.Constraint("DistanceY", 3, 2, -1, 1, Q("6.962729 mm")))
sketch1.addConstraint(Sketcher.Constraint("DistanceY", 4, 2, -1, 1, Q("7.34193 mm")))
sketch1.addConstraint(Sketcher.Constraint("DistanceX", 7, 2, -1, 1, Q("25.71784 mm")))
sketch1.addConstraint(Sketcher.Constraint("DistanceX", 10, 2, -1, 1, Q("18.189082 mm")))
sketch1.addConstraint(Sketcher.Constraint("DistanceX", 13, 2, -1, 1, Q("7.34193 mm")))
sketch1.addConstraint(Sketcher.Constraint("DistanceX", 14, 2, -1, 1, Q("6.962729 mm")))
sketch1.addConstraint(Sketcher.Constraint("DistanceX", 0, 3, -1, 1, Q("22.881465 mm")))
sketch1.addConstraint(Sketcher.Constraint("DistanceY", -1, 1, 0, 3, Q("12.989533 mm")))
sketch1.addConstraint(Sketcher.Constraint("DistanceX", 8, 3, -1, 1, Q("25.364626 mm")))
sketch1.addConstraint(Sketcher.Constraint("DistanceX", 10, 3, -1, 1, Q("6.994653 mm")))
sketch1.addConstraint(Sketcher.Constraint("DistanceX", 16, 3, -1, 1, Q("12.989533 mm")))
sketch1.addConstraint(Sketcher.Constraint("DistanceY", 16, 3, -1, 1, Q("22.881465 mm")))
sketch1.setExpression("Constraints[201]", "Params.sketch1_radius")
sketch1.setExpression("Constraints[202]", "Params.sketch1_radius2")
sketch1.setExpression("Constraints[203]", "Params.sketch1_radius3")
sketch1.setExpression("Constraints[204]", "Params.sketch1_width")
pad1 = body.newObject("PartDesign::Pad", "Pad")
pad1.Profile = sketch1
pad1.setExpression("Length", "Params.pad1_length")

doc.recompute()
